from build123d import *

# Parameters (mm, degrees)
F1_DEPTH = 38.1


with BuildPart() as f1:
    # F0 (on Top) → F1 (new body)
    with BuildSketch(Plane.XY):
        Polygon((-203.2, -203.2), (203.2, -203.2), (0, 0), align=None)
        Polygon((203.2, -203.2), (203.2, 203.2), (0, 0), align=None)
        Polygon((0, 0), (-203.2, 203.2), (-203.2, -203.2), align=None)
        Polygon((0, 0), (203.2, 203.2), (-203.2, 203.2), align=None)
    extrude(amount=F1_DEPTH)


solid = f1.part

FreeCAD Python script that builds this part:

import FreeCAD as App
import Part
import Sketcher
Q = App.Units.Quantity

doc = App.newDocument("Part")
body = doc.addObject("PartDesign::Body", "Body")

# Sketch on XY plane
sketch1 = body.newObject("Sketcher::SketchObject", "Sketch")
sketch1.AttachmentSupport = (doc.getObject("XY_Plane"), [""])
sketch1.MapMode = "FlatFace"
sketch1.addGeometry(Part.LineSegment(App.Vector(-203, -203, 0), App.Vector(203, -203, 0)), False)
sketch1.addGeometry(Part.LineSegment(App.Vector(203, -203, 0), App.Vector(203, 203, 0)), False)
sketch1.addGeometry(Part.LineSegment(App.Vector(203, 203, 0), App.Vector(-203, 203, 0)), False)
sketch1.addGeometry(Part.LineSegment(App.Vector(-203, 203, 0), App.Vector(-203, -203, 0)), False)
sketch1.addConstraint(Sketcher.Constraint("Coincident", 0, 2, 1, 1))
sketch1.addConstraint(Sketcher.Constraint("Coincident", 1, 2, 2, 1))
sketch1.addConstraint(Sketcher.Constraint("Coincident", 2, 2, 3, 1))
sketch1.addConstraint(Sketcher.Constraint("Coincident", 3, 2, 0, 1))
sketch1.addConstraint(Sketcher.Constraint("Horizontal", 0))
sketch1.addConstraint(Sketcher.Constraint("Vertical", 1))
sketch1.addConstraint(Sketcher.Constraint("Horizontal", 2))
sketch1.addConstraint(Sketcher.Constraint("Vertical", 3))
sketch1.addConstraint(Sketcher.Constraint("Symmetric", 0, 2, 2, 2, -1, 1))
sketch1.addConstraint(Sketcher.Constraint("Equal", 2, 1))
sketch1.addConstraint(Sketcher.Constraint("DistanceX", 0, 1, 0, 2, Q("16 in")))
pad1 = body.newObject("PartDesign::Pad", "Pad")
pad1.Profile = sketch1
pad1.Length = Q("1.5 in")

doc.recompute()
